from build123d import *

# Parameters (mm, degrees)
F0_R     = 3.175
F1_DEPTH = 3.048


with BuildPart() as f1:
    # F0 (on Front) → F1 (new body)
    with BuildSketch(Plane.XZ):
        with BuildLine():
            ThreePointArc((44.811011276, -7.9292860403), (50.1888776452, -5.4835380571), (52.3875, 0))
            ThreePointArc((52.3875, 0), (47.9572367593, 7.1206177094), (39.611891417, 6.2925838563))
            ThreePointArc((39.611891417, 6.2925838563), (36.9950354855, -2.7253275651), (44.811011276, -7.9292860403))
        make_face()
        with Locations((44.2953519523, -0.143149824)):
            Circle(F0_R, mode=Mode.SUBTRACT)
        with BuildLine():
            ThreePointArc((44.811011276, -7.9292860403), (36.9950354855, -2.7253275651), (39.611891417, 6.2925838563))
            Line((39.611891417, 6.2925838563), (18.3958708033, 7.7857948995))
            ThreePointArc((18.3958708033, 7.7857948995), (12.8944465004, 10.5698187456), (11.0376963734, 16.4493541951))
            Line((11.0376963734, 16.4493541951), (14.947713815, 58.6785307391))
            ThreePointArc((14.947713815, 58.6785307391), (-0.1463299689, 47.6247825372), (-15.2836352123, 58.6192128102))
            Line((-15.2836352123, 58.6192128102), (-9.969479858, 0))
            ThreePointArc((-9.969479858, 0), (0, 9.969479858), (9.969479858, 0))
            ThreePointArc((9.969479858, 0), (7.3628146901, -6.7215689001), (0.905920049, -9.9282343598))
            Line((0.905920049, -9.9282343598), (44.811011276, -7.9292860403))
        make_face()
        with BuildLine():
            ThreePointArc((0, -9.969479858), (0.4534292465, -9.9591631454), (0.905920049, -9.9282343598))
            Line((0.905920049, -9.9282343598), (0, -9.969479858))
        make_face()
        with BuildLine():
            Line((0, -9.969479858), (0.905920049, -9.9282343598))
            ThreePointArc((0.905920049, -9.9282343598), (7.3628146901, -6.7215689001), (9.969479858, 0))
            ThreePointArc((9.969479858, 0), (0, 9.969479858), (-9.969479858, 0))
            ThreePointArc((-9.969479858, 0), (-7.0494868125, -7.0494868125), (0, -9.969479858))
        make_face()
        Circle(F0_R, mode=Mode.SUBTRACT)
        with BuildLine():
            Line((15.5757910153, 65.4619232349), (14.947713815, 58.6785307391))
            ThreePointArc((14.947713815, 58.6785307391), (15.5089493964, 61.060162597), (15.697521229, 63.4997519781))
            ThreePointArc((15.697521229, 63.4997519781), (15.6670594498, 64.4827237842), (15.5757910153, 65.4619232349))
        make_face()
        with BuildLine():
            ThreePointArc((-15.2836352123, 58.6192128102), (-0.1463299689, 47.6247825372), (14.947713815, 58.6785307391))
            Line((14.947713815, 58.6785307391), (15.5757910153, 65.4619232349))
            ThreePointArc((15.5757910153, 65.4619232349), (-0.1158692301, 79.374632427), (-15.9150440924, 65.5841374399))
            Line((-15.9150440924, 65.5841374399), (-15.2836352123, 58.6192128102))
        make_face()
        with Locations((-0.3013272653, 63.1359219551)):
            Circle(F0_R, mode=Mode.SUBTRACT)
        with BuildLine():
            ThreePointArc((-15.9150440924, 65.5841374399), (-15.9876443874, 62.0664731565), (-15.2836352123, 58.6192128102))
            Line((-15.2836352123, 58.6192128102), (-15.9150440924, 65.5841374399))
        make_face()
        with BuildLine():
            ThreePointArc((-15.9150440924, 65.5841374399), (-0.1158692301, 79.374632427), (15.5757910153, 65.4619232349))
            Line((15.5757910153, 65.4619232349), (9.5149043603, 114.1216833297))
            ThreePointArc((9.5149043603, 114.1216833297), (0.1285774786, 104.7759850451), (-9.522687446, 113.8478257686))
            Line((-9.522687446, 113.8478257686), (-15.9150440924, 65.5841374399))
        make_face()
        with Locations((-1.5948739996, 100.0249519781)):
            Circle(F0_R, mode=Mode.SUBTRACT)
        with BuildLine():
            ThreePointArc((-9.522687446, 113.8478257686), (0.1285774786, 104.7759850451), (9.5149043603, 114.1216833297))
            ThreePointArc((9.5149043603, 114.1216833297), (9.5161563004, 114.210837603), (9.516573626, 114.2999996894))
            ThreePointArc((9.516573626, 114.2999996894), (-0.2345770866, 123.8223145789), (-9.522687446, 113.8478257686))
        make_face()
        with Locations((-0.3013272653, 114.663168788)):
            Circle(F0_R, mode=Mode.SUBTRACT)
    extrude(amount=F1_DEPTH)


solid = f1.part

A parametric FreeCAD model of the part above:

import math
import FreeCAD as App
import Part
import Sketcher
from FreeCAD import Vector
Q = App.Units.Quantity

doc = App.newDocument("Part")
body = doc.addObject("PartDesign::Body", "Body")

# Sketch on XZ plane
sketch1 = doc.addObject("Sketcher::SketchObject", "Sketch")
body.addObject(sketch1)
sketch1.AttachmentSupport = (doc.XZ_Plane, [""])
sketch1.MapMode = "FlatFace"
sketch1.addGeometry([
    Part.ArcOfCircle(Part.Circle(Vector(44.45, 0, 0), Vector(0, 0, 1), 7.94), math.radians(-87), math.radians(0)),  # 0
    Part.ArcOfCircle(Part.Circle(Vector(44.45, 0, 0), Vector(0, 0, 1), 7.94), math.radians(0), math.radians(128)),  # 1
    Part.LineSegment(Vector(39.61, 6.29, 0), Vector(18.4, 7.79, 0)),  # 2
    Part.ArcOfCircle(Part.Circle(Vector(18.95, 15.72, 0), Vector(0, 0, 1), 7.95), math.radians(175), math.radians(266)),  # 3
    Part.LineSegment(Vector(11.04, 16.45, 0), Vector(14.95, 58.68, 0)),  # 4
    Part.ArcOfCircle(Part.Circle(Vector(-0.18, 63.5, 0), Vector(0, 0, 1), 15.88), math.radians(-17.68), math.radians(0)),  # 5
    Part.ArcOfCircle(Part.Circle(Vector(-0.18, 63.5, 0), Vector(0, 0, 1), 15.87), math.radians(0), math.radians(7.1)),  # 6
    Part.LineSegment(Vector(15.58, 65.46, 0), Vector(9.51, 114.12, 0)),  # 7
    Part.ArcOfCircle(Part.Circle(Vector(-0.01, 114.3, 0), Vector(0, 0, 1), 9.53), math.radians(-1.07), math.radians(0)),  # 8
    Part.ArcOfCircle(Part.Circle(Vector(-0.01, 114.3, 0), Vector(0, 0, 1), 9.53), math.radians(0), math.radians(183)),  # 9
    Part.LineSegment(Vector(-9.52, 113.85, 0), Vector(-15.92, 65.58, 0)),  # 10
    Part.ArcOfCircle(Part.Circle(Vector(-0.18, 63.5, 0), Vector(0, 0, 1), 15.88), math.radians(172), math.radians(198)),  # 11
    Part.LineSegment(Vector(-15.28, 58.62, 0), Vector(-9.97, 0, 0)),  # 12
    Part.ArcOfCircle(Part.Circle(Vector(0, 0, 0), Vector(0, 0, 1), 9.97), math.radians(180), math.radians(270)),  # 13
    Part.ArcOfCircle(Part.Circle(Vector(0, 0, 0), Vector(0, 0, 1), 9.97), math.radians(-90), math.radians(-84.79)),  # 14
    Part.LineSegment(Vector(0.91, -9.93, 0), Vector(44.81, -7.93, 0)),  # 15
    Part.Circle(Vector(0, 0, 0), Vector(0, 0, 1), 3.17),  # 16
    Part.Circle(Vector(44.3, -0.14, 0), Vector(0, 0, 1), 3.17),  # 17
    Part.Circle(Vector(-0.3, 63.14, 0), Vector(0, 0, 1), 3.17),  # 18
    Part.Circle(Vector(-1.59, 100.02, 0), Vector(0, 0, 1), 3.17),  # 19
    Part.Circle(Vector(-0.3, 114.66, 0), Vector(0, 0, 1), 3.17),  # 20
], False)
sketch1.addConstraint([
    Sketcher.Constraint("Tangent", 0, 2, 1, 1),
    Sketcher.Constraint("Coincident", 1, 2, 2, 1),
    Sketcher.Constraint("Tangent", 2, 2, 3, 2),
    Sketcher.Constraint("Tangent", 3, 1, 4, 1),
    Sketcher.Constraint("Coincident", 4, 2, 5, 1),
    Sketcher.Constraint("Tangent", 5, 2, 6, 1),
    Sketcher.Constraint("Tangent", 6, 2, 7, 1),
    Sketcher.Constraint("Coincident", 7, 2, 8, 1),
    Sketcher.Constraint("Tangent", 8, 2, 9, 1),
    Sketcher.Constraint("Coincident", 9, 2, 10, 1),
    Sketcher.Constraint("Tangent", 10, 2, 11, 1),
    Sketcher.Constraint("Coincident", 11, 2, 12, 1),
    Sketcher.Constraint("Coincident", 12, 2, 13, 1),
    Sketcher.Constraint("Tangent", 13, 2, 14, 1),
    Sketcher.Constraint("Coincident", 14, 2, 15, 1),
    Sketcher.Constraint("Tangent", 15, 2, 0, 1),
    Sketcher.Constraint("Coincident", 13, 3, -1, 1),
    Sketcher.Constraint("Coincident", 16, 3, -1, 1),
    Sketcher.Constraint("Coincident", 11, 3, 5, 3),
    Sketcher.Constraint("Equal", 0, 1),
    Sketcher.Constraint("Equal", 5, 6),
    Sketcher.Constraint("Equal", 8, 9),
    Sketcher.Constraint("Equal", 6, 11),
    Sketcher.Constraint("Equal", 13, 14),
    Sketcher.Constraint("Equal", 16, 17),
    Sketcher.Constraint("Equal", 17, 18),
    Sketcher.Constraint("Equal", 18, 19),
    Sketcher.Constraint("Equal", 19, 20),
    Sketcher.Constraint("PointOnObject", 0, 3, -1),
    Sketcher.Constraint("PointOnObject", 0, 2, -1),
    Sketcher.Constraint("PointOnObject", 12, 2, -1),
    Sketcher.Constraint("PointOnObject", 13, 2, -2),
    Sketcher.Constraint("Horizontal", 11, 3, 5, 2),
    Sketcher.Constraint("Horizontal", 9, 3, 8, 2),
    Sketcher.Constraint("Vertical", 18, 3, 20, 3),
    Sketcher.Constraint("Diameter", 16, Q("0.25 in")),
    Sketcher.Constraint("Radius", 0, Q("0.3125 in")),
    Sketcher.Constraint("Radius", 3, Q("0.313 in")),
    Sketcher.Constraint("Radius", 5, Q("0.625 in")),
    Sketcher.Constraint("Radius", 8, Q("0.375 in")),
    Sketcher.Constraint("DistanceY", -1, 1, 8, 3, Q("4.5 in")),
    Sketcher.Constraint("Angle", 7, Q("97.099992 deg")),
    Sketcher.Constraint("DistanceX", -1, 1, 0, 3, Q("1.75 in")),
    Sketcher.Constraint("Angle", 12, Q("-84.819981 deg")),
    Sketcher.Constraint("Radius", 13, Q("9.96948 mm")),
    Sketcher.Constraint("DistanceY", 6, 3, 19, 3, Q("1.438 in")),
    Sketcher.Constraint("DistanceY", 9, 2, 20, 3, Q("0.0321001 in")),
    Sketcher.Constraint("Distance", 12, Q("58.859599 mm")),
    Sketcher.Constraint("DistanceX", 18, 3, 9, 3, Q("0.292901 mm")),
    Sketcher.Constraint("DistanceX", 12, 2, 14, 2, Q("10.8754 mm")),
    Sketcher.Constraint("Distance", 7, Q("49.035769 mm")),
    Sketcher.Constraint("Distance", 10, Q("48.685171 mm")),
    Sketcher.Constraint("DistanceX", 5, 3, -1, 1, Q("0.177479 mm")),
    Sketcher.Constraint("DistanceX", -1, 1, 17, 3, Q("44.295352 mm")),
    Sketcher.Constraint("DistanceY", 17, 3, -1, 1, Q("0.14315 mm")),
    Sketcher.Constraint("DistanceY", -1, 1, 18, 3, Q("63.135922 mm")),
    Sketcher.Constraint("DistanceX", -1, 1, 1, 2, Q("39.611891 mm")),
    Sketcher.Constraint("DistanceX", -1, 1, 2, 2, Q("18.395871 mm")),
    Sketcher.Constraint("DistanceY", -1, 1, 4, 2, Q("58.678531 mm")),
    Sketcher.Constraint("DistanceX", 9, 3, 3, 3, Q("18.962462 mm")),
    Sketcher.Constraint("DistanceX", 19, 3, 7, 2, Q("11.109778 mm")),
])
pad1 = doc.addObject("PartDesign::Pad", "Pad")
body.addObject(pad1)
pad1.Profile = sketch1
pad1.Length = Q("0.12 in")

doc.recompute()
